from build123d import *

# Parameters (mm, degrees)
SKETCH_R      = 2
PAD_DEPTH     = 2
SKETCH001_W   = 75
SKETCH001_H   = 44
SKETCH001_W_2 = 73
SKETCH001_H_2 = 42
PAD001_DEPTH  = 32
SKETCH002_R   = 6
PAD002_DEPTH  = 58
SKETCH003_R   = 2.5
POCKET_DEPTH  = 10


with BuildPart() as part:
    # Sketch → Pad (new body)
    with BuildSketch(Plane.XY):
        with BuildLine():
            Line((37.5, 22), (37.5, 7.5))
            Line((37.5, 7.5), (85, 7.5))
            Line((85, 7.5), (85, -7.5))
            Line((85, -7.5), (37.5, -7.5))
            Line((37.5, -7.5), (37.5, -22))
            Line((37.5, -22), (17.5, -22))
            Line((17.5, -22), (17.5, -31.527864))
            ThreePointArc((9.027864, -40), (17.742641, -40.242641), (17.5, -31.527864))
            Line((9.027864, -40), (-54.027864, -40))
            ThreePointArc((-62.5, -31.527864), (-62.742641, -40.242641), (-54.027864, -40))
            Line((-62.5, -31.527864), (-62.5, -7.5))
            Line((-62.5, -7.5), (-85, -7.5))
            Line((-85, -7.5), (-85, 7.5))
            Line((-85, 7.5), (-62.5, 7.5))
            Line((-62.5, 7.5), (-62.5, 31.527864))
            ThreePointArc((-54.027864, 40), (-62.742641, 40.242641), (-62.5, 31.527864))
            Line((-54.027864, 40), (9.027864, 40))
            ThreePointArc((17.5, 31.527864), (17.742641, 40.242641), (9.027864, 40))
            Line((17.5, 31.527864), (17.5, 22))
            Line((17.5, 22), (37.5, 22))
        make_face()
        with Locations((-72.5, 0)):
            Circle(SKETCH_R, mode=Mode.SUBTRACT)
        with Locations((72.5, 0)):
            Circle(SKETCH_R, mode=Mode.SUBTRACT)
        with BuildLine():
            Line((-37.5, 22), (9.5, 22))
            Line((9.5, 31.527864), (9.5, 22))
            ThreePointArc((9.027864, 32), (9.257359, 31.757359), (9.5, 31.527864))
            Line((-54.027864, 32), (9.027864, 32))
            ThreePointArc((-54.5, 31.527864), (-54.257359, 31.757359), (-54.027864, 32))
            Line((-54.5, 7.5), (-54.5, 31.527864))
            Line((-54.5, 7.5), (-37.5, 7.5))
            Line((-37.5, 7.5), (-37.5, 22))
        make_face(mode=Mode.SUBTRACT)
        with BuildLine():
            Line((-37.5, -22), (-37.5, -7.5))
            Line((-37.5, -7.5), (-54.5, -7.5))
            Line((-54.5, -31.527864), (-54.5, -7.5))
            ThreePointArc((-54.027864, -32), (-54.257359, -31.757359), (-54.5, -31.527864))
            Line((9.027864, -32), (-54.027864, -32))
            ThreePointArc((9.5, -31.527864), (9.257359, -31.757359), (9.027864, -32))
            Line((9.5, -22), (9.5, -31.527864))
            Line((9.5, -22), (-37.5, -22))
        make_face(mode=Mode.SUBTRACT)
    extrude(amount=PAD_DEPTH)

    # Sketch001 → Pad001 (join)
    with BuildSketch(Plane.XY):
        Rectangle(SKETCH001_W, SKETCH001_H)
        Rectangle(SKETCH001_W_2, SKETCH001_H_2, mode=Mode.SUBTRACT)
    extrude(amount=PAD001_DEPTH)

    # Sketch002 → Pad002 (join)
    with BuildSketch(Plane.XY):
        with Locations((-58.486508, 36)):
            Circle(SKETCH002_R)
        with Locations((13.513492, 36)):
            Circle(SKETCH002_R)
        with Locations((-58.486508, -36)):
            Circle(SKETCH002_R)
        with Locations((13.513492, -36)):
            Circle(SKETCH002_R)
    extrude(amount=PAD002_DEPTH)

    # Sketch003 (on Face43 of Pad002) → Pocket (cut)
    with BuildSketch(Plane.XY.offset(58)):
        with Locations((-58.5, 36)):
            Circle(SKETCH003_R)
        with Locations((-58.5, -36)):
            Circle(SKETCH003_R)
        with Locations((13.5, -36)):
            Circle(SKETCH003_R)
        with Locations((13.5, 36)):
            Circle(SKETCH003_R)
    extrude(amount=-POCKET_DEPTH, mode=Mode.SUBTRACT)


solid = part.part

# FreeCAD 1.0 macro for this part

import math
import FreeCAD as App
import Part
import Sketcher


def add_polygon(sketch, points):
    """Adds a closed chain of lines whose ends are joined by coincident constraints."""
    first, n = sketch.GeometryCount, len(points)
    for a, b in zip(points, points[1:] + points[:1]):
        sketch.addGeometry(Part.LineSegment(App.Vector(*a, 0), App.Vector(*b, 0)), False)
    for i in range(n):
        sketch.addConstraint(Sketcher.Constraint("Coincident", first + i, 2, first + (i + 1) % n, 1))

doc = App.newDocument("Part")
body = doc.addObject("PartDesign::Body", "Body")

# Sketch on XY plane
sketch1 = doc.addObject("Sketcher::SketchObject", "Sketch")
body.addObject(sketch1)
sketch1.AttachmentSupport = (doc.XY_Plane, [""])
sketch1.MapMode = "FlatFace"
sketch1.addGeometry(Part.LineSegment(App.Vector(37.5, 7.5, 0), App.Vector(37.5, 22, 0)), False)
sketch1.addGeometry(Part.LineSegment(App.Vector(37.5, 22, 0), App.Vector(17.5, 22, 0)), False)
sketch1.addGeometry(Part.LineSegment(App.Vector(17.5, 22, 0), App.Vector(17.5, 31.5, 0)), False)
sketch1.addGeometry(Part.ArcOfCircle(Part.Circle(App.Vector(13.5, 36, 0), App.Vector(0, 0, 1), 6), math.radians(-48), math.radians(138)), False)
sketch1.addGeometry(Part.LineSegment(App.Vector(9, 40, 0), App.Vector(-54, 40, 0)), False)
sketch1.addGeometry(Part.ArcOfCircle(Part.Circle(App.Vector(-58.5, 36, 0), App.Vector(0, 0, 1), 6), math.radians(42), math.radians(228)), False)
sketch1.addGeometry(Part.LineSegment(App.Vector(-62.5, 31.5, 0), App.Vector(-62.5, 7.5, 0)), False)
sketch1.addGeometry(Part.LineSegment(App.Vector(-62.5, 7.5, 0), App.Vector(-85, 7.5, 0)), False)
sketch1.addGeometry(Part.LineSegment(App.Vector(-85, 7.5, 0), App.Vector(-85, -7.5, 0)), False)
sketch1.addGeometry(Part.LineSegment(App.Vector(-85, -7.5, 0), App.Vector(-62.5, -7.5, 0)), False)
sketch1.addGeometry(Part.LineSegment(App.Vector(-62.5, -7.5, 0), App.Vector(-62.5, -31.5, 0)), False)
sketch1.addGeometry(Part.ArcOfCircle(Part.Circle(App.Vector(-58.5, -36, 0), App.Vector(0, 0, 1), 6), math.radians(132), math.radians(318)), False)
sketch1.addGeometry(Part.LineSegment(App.Vector(-54, -40, 0), App.Vector(9, -40, 0)), False)
sketch1.addGeometry(Part.ArcOfCircle(Part.Circle(App.Vector(13.5, -36, 0), App.Vector(0, 0, 1), 6), math.radians(-138), math.radians(48)), False)
sketch1.addGeometry(Part.LineSegment(App.Vector(17.5, -31.5, 0), App.Vector(17.5, -22, 0)), False)
sketch1.addGeometry(Part.LineSegment(App.Vector(17.5, -22, 0), App.Vector(37.5, -22, 0)), False)
sketch1.addGeometry(Part.LineSegment(App.Vector(37.5, -22, 0), App.Vector(37.5, -7.5, 0)), False)
sketch1.addGeometry(Part.LineSegment(App.Vector(37.5, -7.5, 0), App.Vector(85, -7.5, 0)), False)
sketch1.addGeometry(Part.LineSegment(App.Vector(85, -7.5, 0), App.Vector(85, 7.5, 0)), False)
sketch1.addGeometry(Part.LineSegment(App.Vector(85, 7.5, 0), App.Vector(37.5, 7.5, 0)), False)
sketch1.addGeometry(Part.LineSegment(App.Vector(-37.5, -22, 0), App.Vector(9.5, -22, 0)), False)
sketch1.addGeometry(Part.LineSegment(App.Vector(9.5, -22, 0), App.Vector(9.5, -31.5, 0)), False)
sketch1.addGeometry(Part.ArcOfCircle(Part.Circle(App.Vector(13.5, -36, 0), App.Vector(0, 0, 1), 6), math.radians(131.81), math.radians(138.19)), False)
sketch1.addGeometry(Part.LineSegment(App.Vector(9, -32, 0), App.Vector(-54, -32, 0)), False)
sketch1.addGeometry(Part.ArcOfCircle(Part.Circle(App.Vector(-58.5, -36, 0), App.Vector(0, 0, 1), 6), math.radians(41.81), math.radians(48.19)), False)
sketch1.addGeometry(Part.LineSegment(App.Vector(-54.5, -31.5, 0), App.Vector(-54.5, -7.5, 0)), False)
sketch1.addGeometry(Part.LineSegment(App.Vector(-54.5, -7.5, 0), App.Vector(-37.5, -7.5, 0)), False)
sketch1.addGeometry(Part.LineSegment(App.Vector(-37.5, -7.5, 0), App.Vector(-37.5, -22, 0)), False)
sketch1.addGeometry(Part.Circle(App.Vector(72.5, 0, 0), App.Vector(0, 0, 1), 2), False)
sketch1.addGeometry(Part.Circle(App.Vector(-72.5, 0, 0), App.Vector(0, 0, 1), 2), False)
sketch1.addGeometry(Part.LineSegment(App.Vector(-37.5, 22, 0), App.Vector(-37.5, 7.5, 0)), False)
sketch1.addGeometry(Part.LineSegment(App.Vector(-37.5, 7.5, 0), App.Vector(-54.5, 7.5, 0)), False)
sketch1.addGeometry(Part.LineSegment(App.Vector(-54.5, 7.5, 0), App.Vector(-54.5, 31.5, 0)), False)
sketch1.addGeometry(Part.ArcOfCircle(Part.Circle(App.Vector(-58.5, 36, 0), App.Vector(0, 0, 1), 6), math.radians(-48.19), math.radians(-41.81)), False)
sketch1.addGeometry(Part.LineSegment(App.Vector(-54, 32, 0), App.Vector(9, 32, 0)), False)
sketch1.addGeometry(Part.ArcOfCircle(Part.Circle(App.Vector(13.5, 36, 0), App.Vector(0, 0, 1), 6), math.radians(-138.19), math.radians(-131.81)), False)
sketch1.addGeometry(Part.LineSegment(App.Vector(9.5, 31.5, 0), App.Vector(9.5, 22, 0)), False)
sketch1.addGeometry(Part.LineSegment(App.Vector(9.5, 22, 0), App.Vector(-37.5, 22, 0)), False)
sketch1.addConstraint(Sketcher.Constraint("Coincident", 0, 2, 1, 1))
sketch1.addConstraint(Sketcher.Constraint("Coincident", 1, 2, 2, 1))
sketch1.addConstraint(Sketcher.Constraint("Coincident", 2, 2, 3, 1))
sketch1.addConstraint(Sketcher.Constraint("Coincident", 3, 2, 4, 1))
sketch1.addConstraint(Sketcher.Constraint("Coincident", 4, 2, 5, 1))
sketch1.addConstraint(Sketcher.Constraint("Coincident", 5, 2, 6, 1))
sketch1.addConstraint(Sketcher.Constraint("Coincident", 6, 2, 7, 1))
sketch1.addConstraint(Sketcher.Constraint("Coincident", 7, 2, 8, 1))
sketch1.addConstraint(Sketcher.Constraint("Coincident", 8, 2, 9, 1))
sketch1.addConstraint(Sketcher.Constraint("Coincident", 9, 2, 10, 1))
sketch1.addConstraint(Sketcher.Constraint("Coincident", 10, 2, 11, 1))
sketch1.addConstraint(Sketcher.Constraint("Coincident", 11, 2, 12, 1))
sketch1.addConstraint(Sketcher.Constraint("Coincident", 12, 2, 13, 1))
sketch1.addConstraint(Sketcher.Constraint("Coincident", 13, 2, 14, 1))
sketch1.addConstraint(Sketcher.Constraint("Coincident", 14, 2, 15, 1))
sketch1.addConstraint(Sketcher.Constraint("Coincident", 15, 2, 16, 1))
sketch1.addConstraint(Sketcher.Constraint("Coincident", 16, 2, 17, 1))
sketch1.addConstraint(Sketcher.Constraint("Coincident", 17, 2, 18, 1))
sketch1.addConstraint(Sketcher.Constraint("Coincident", 18, 2, 19, 1))
sketch1.addConstraint(Sketcher.Constraint("Coincident", 19, 2, 0, 1))
sketch1.addConstraint(Sketcher.Constraint("Coincident", 20, 2, 21, 1))
sketch1.addConstraint(Sketcher.Constraint("Coincident", 21, 2, 22, 1))
sketch1.addConstraint(Sketcher.Constraint("Coincident", 22, 2, 23, 1))
sketch1.addConstraint(Sketcher.Constraint("Coincident", 23, 2, 24, 1))
sketch1.addConstraint(Sketcher.Constraint("Coincident", 24, 2, 25, 1))
sketch1.addConstraint(Sketcher.Constraint("Coincident", 25, 2, 26, 1))
sketch1.addConstraint(Sketcher.Constraint("Coincident", 26, 2, 27, 1))
sketch1.addConstraint(Sketcher.Constraint("Coincident", 27, 2, 20, 1))
sketch1.addConstraint(Sketcher.Constraint("Coincident", 30, 2, 31, 1))
sketch1.addConstraint(Sketcher.Constraint("Coincident", 31, 2, 32, 1))
sketch1.addConstraint(Sketcher.Constraint("Coincident", 32, 2, 33, 1))
sketch1.addConstraint(Sketcher.Constraint("Coincident", 33, 2, 34, 1))
sketch1.addConstraint(Sketcher.Constraint("Coincident", 34, 2, 35, 1))
sketch1.addConstraint(Sketcher.Constraint("Coincident", 35, 2, 36, 1))
sketch1.addConstraint(Sketcher.Constraint("Coincident", 36, 2, 37, 1))
sketch1.addConstraint(Sketcher.Constraint("Coincident", 37, 2, 30, 1))
sketch1.addConstraint(Sketcher.Constraint("Vertical", 0))
sketch1.addConstraint(Sketcher.Constraint("Horizontal", 1))
sketch1.addConstraint(Sketcher.Constraint("Vertical", 2))
sketch1.addConstraint(Sketcher.Constraint("Horizontal", 4))
sketch1.addConstraint(Sketcher.Constraint("Vertical", 6))
sketch1.addConstraint(Sketcher.Constraint("Horizontal", 7))
sketch1.addConstraint(Sketcher.Constraint("Vertical", 8))
sketch1.addConstraint(Sketcher.Constraint("Horizontal", 9))
sketch1.addConstraint(Sketcher.Constraint("Vertical", 10))
sketch1.addConstraint(Sketcher.Constraint("Horizontal", 12))
sketch1.addConstraint(Sketcher.Constraint("Vertical", 14))
sketch1.addConstraint(Sketcher.Constraint("Horizontal", 15))
sketch1.addConstraint(Sketcher.Constraint("Vertical", 16))
sketch1.addConstraint(Sketcher.Constraint("Horizontal", 17))
sketch1.addConstraint(Sketcher.Constraint("Vertical", 18))
sketch1.addConstraint(Sketcher.Constraint("Horizontal", 19))
sketch1.addConstraint(Sketcher.Constraint("Horizontal", 20))
sketch1.addConstraint(Sketcher.Constraint("Vertical", 21))
sketch1.addConstraint(Sketcher.Constraint("Horizontal", 23))
sketch1.addConstraint(Sketcher.Constraint("Vertical", 25))
sketch1.addConstraint(Sketcher.Constraint("Horizontal", 26))
sketch1.addConstraint(Sketcher.Constraint("Vertical", 27))
sketch1.addConstraint(Sketcher.Constraint("Vertical", 30))
sketch1.addConstraint(Sketcher.Constraint("Horizontal", 31))
sketch1.addConstraint(Sketcher.Constraint("Vertical", 32))
sketch1.addConstraint(Sketcher.Constraint("Horizontal", 34))
sketch1.addConstraint(Sketcher.Constraint("Vertical", 36))
sketch1.addConstraint(Sketcher.Constraint("Horizontal", 37))
sketch1.addConstraint(Sketcher.Constraint("Equal", 3, 5))
sketch1.addConstraint(Sketcher.Constraint("Equal", 5, 11))
sketch1.addConstraint(Sketcher.Constraint("Equal", 11, 13))
sketch1.addConstraint(Sketcher.Constraint("Equal", 22, 24))
sketch1.addConstraint(Sketcher.Constraint("Equal", 28, 29))
sketch1.addConstraint(Sketcher.Constraint("Equal", 24, 33))
sketch1.addConstraint(Sketcher.Constraint("Equal", 33, 35))
sketch1.addConstraint(Sketcher.Constraint("Symmetric", 28, 3, 29, 3, -1, 1))
sketch1.addConstraint(Sketcher.Constraint("Symmetric", 7, 2, 17, 2, -1, 1))
sketch1.addConstraint(Sketcher.Constraint("Symmetric", 19, 2, 26, 2, -1, 1))
sketch1.addConstraint(Sketcher.Constraint("Symmetric", 16, 2, 30, 2, -1, 1))
sketch1.addConstraint(Sketcher.Constraint("Symmetric", 16, 2, 26, 2, -2))
sketch1.addConstraint(Sketcher.Constraint("Symmetric", 5, 3, 11, 3, -1))
sketch1.addConstraint(Sketcher.Constraint("Symmetric", 3, 3, 13, 3, -1))
sketch1.addConstraint(Sketcher.Constraint("Symmetric", 24, 3, 33, 3, -1))
sketch1.addConstraint(Sketcher.Constraint("Symmetric", 22, 3, 35, 3, -1))
sketch1.addConstraint(Sketcher.Constraint("Symmetric", 6, 2, 9, 2, -1))
sketch1.addConstraint(Sketcher.Constraint("Symmetric", 1, 2, 14, 2, -1))
sketch1.addConstraint(Sketcher.Constraint("Symmetric", 20, 2, 36, 2, -1))
sketch1.addConstraint(Sketcher.Constraint("PointOnObject", 28, 3, -1))
sketch1.addConstraint(Sketcher.Constraint("Horizontal", 3, 3, 5, 3))
sketch1.addConstraint(Sketcher.Constraint("Horizontal", 22, 3, 24, 3))
sketch1.addConstraint(Sketcher.Constraint("Horizontal", 2, 2, 5, 2))
sketch1.addConstraint(Sketcher.Constraint("Horizontal", 15, 2, 20, 2))
sketch1.addConstraint(Sketcher.Constraint("Horizontal", 13, 2, 21, 2))
sketch1.addConstraint(Sketcher.Constraint("Horizontal", 21, 2, 24, 2))
sketch1.addConstraint(Sketcher.Constraint("Horizontal", 5, 2, 32, 2))
sketch1.addConstraint(Sketcher.Constraint("Vertical", 4, 2, 11, 2))
sketch1.addConstraint(Sketcher.Constraint("Vertical", 12, 2, 22, 2))
sketch1.addConstraint(Sketcher.Constraint("Vertical", 11, 2, 23, 2))
sketch1.addConstraint(Sketcher.Constraint("Vertical", 23, 2, 33, 2))
sketch1.addConstraint(Sketcher.Constraint("Diameter", 28, 4.0))
sketch1.addConstraint(Sketcher.Constraint("Radius", 3, 6.0))
sketch1.addConstraint(Sketcher.Constraint("DistanceX", 1, 2, 1, 1, 20.0))
sketch1.addConstraint(Sketcher.Constraint("DistanceX", 20, 1, 20, 2, 47.0))
sketch1.addConstraint(Sketcher.Constraint("DistanceX", 26, 1, 26, 2, 17.0))
sketch1.addConstraint(Sketcher.Constraint("DistanceY", 8, 2, 8, 1, 15.0))
sketch1.addConstraint(Sketcher.Constraint("DistanceX", 7, 2, 7, 1, 22.5))
sketch1.addConstraint(Sketcher.Constraint("DistanceX", 17, 1, 17, 2, 47.5))
sketch1.addConstraint(Sketcher.Constraint("DistanceY", 0, 1, 0, 2, 14.5))
sketch1.addConstraint(Sketcher.Constraint("DistanceY", -1, 1, 3, 3, 36.0))
sketch1.addConstraint(Sketcher.Constraint("DistanceY", -1, 1, 3, 2, 40.0))
sketch1.addConstraint(Sketcher.Constraint("DistanceY", 22, 2, -1, 1, 32.0))
sketch1.addConstraint(Sketcher.Constraint("DistanceX", 5, 3, 3, 3, 72.000001))
sketch1.addConstraint(Sketcher.Constraint("DistanceX", 3, 3, 28, 3, 59.0))
sketch1.addConstraint(Sketcher.Constraint("Radius", 22, 5.999736))
pad1 = doc.addObject("PartDesign::Pad", "Pad")
body.addObject(pad1)
pad1.Profile = sketch1
pad1.Length = 2

# Sketch on XY plane
sketch2 = doc.addObject("Sketcher::SketchObject", "Sketch001")
body.addObject(sketch2)
sketch2.AttachmentSupport = (doc.XY_Plane, [""])
sketch2.MapMode = "FlatFace"
add_polygon(sketch2, [(-38, 22), (-38, -22), (38, -22), (38, 22)])  # lines 0-3
add_polygon(sketch2, [(36, -21), (-36, -21), (-36, 21), (36, 21)])  # lines 4-7
sketch2.addConstraint(Sketcher.Constraint("Vertical", 0))
sketch2.addConstraint(Sketcher.Constraint("Horizontal", 1))
sketch2.addConstraint(Sketcher.Constraint("Vertical", 2))
sketch2.addConstraint(Sketcher.Constraint("Horizontal", 3))
sketch2.addConstraint(Sketcher.Constraint("Horizontal", 4))
sketch2.addConstraint(Sketcher.Constraint("Vertical", 5))
sketch2.addConstraint(Sketcher.Constraint("Horizontal", 6))
sketch2.addConstraint(Sketcher.Constraint("Vertical", 7))
sketch2.addConstraint(Sketcher.Constraint("Symmetric", 0, 2, 2, 2, -1, 1))
sketch2.addConstraint(Sketcher.Constraint("Symmetric", 4, 2, 6, 2, -1, 1))
sketch2.addConstraint(Sketcher.Constraint("DistanceX", 1, 1, 1, 2, 75.0))
sketch2.addConstraint(Sketcher.Constraint("DistanceX", 4, 2, 4, 1, 73.0))
sketch2.addConstraint(Sketcher.Constraint("DistanceY", 0, 2, 0, 1, 44.0))
sketch2.addConstraint(Sketcher.Constraint("DistanceY", 5, 1, 5, 2, 42.0))
pad2 = doc.addObject("PartDesign::Pad", "Pad001")
body.addObject(pad2)
pad2.Profile = sketch2
pad2.Length = 32

# Sketch on XY plane
sketch3 = doc.addObject("Sketcher::SketchObject", "Sketch002")
body.addObject(sketch3)
sketch3.AttachmentSupport = (doc.XY_Plane, [""])
sketch3.MapMode = "FlatFace"
sketch3.addGeometry(Part.Circle(App.Vector(-58, 36, 0), App.Vector(0, 0, 1), 6), False)
sketch3.addGeometry(Part.Circle(App.Vector(14, 36, 0), App.Vector(0, 0, 1), 6), False)
sketch3.addGeometry(Part.Circle(App.Vector(-58, -36, 0), App.Vector(0, 0, 1), 6), False)
sketch3.addGeometry(Part.Circle(App.Vector(14, -36, 0), App.Vector(0, 0, 1), 6), False)
sketch3.addConstraint(Sketcher.Constraint("Equal", 0, 1))
sketch3.addConstraint(Sketcher.Constraint("Equal", 1, 2))
sketch3.addConstraint(Sketcher.Constraint("Equal", 2, 3))
sketch3.addConstraint(Sketcher.Constraint("Symmetric", 0, 3, 2, 3, -1))
sketch3.addConstraint(Sketcher.Constraint("Symmetric", 1, 3, 3, 3, -1))
sketch3.addConstraint(Sketcher.Constraint("Horizontal", 0, 3, 1, 3))
sketch3.addConstraint(Sketcher.Constraint("Diameter", 0, 12.0))
sketch3.addConstraint(Sketcher.Constraint("DistanceY", -1, 1, 0, 3, 36.0))
sketch3.addConstraint(Sketcher.Constraint("DistanceX", 0, 3, 1, 3, 72.0))
sketch3.addConstraint(Sketcher.Constraint("DistanceX", 0, 3, -1, 1, 58.486508))
pad3 = doc.addObject("PartDesign::Pad", "Pad002")
body.addObject(pad3)
pad3.Profile = sketch3
pad3.Length = 58

# Sketch on XY plane
sketch4 = doc.addObject("Sketcher::SketchObject", "Sketch003")
body.addObject(sketch4)
sketch4.AttachmentSupport = (doc.XY_Plane, [""])
sketch4.MapMode = "FlatFace"
sketch4.AttachmentOffset = App.Placement(App.Vector(0, 0, 58), App.Rotation())
sketch4.addGeometry(Part.Circle(App.Vector(-58.5, 36, 0), App.Vector(0, 0, 1), 2.5), False)
sketch4.addGeometry(Part.Circle(App.Vector(-58.5, -36, 0), App.Vector(0, 0, 1), 2.5), False)
sketch4.addGeometry(Part.Circle(App.Vector(13.5, -36, 0), App.Vector(0, 0, 1), 2.5), False)
sketch4.addGeometry(Part.Circle(App.Vector(13.5, 36, 0), App.Vector(0, 0, 1), 2.5), False)
sketch4.addConstraint(Sketcher.Constraint("Equal", 0, 1))
sketch4.addConstraint(Sketcher.Constraint("Equal", 1, 2))
sketch4.addConstraint(Sketcher.Constraint("Equal", 2, 3))
sketch4.addConstraint(Sketcher.Constraint("Symmetric", 0, 3, 1, 3, -1))
sketch4.addConstraint(Sketcher.Constraint("Symmetric", 2, 3, 3, 3, -1))
sketch4.addConstraint(Sketcher.Constraint("Horizontal", 1, 3, 2, 3))
sketch4.addConstraint(Sketcher.Constraint("Diameter", 0, 5.0))
sketch4.addConstraint(Sketcher.Constraint("DistanceY", -1, 1, 0, 3, 36.0))
sketch4.addConstraint(Sketcher.Constraint("DistanceX", 1, 3, 2, 3, 72.0))
sketch4.addConstraint(Sketcher.Constraint("DistanceX", 0, 3, -1, 1, 58.5))
pocket1 = doc.addObject("PartDesign::Pocket", "Pocket")
body.addObject(pocket1)
pocket1.Profile = sketch4
pocket1.Length = 10

doc.recompute()
